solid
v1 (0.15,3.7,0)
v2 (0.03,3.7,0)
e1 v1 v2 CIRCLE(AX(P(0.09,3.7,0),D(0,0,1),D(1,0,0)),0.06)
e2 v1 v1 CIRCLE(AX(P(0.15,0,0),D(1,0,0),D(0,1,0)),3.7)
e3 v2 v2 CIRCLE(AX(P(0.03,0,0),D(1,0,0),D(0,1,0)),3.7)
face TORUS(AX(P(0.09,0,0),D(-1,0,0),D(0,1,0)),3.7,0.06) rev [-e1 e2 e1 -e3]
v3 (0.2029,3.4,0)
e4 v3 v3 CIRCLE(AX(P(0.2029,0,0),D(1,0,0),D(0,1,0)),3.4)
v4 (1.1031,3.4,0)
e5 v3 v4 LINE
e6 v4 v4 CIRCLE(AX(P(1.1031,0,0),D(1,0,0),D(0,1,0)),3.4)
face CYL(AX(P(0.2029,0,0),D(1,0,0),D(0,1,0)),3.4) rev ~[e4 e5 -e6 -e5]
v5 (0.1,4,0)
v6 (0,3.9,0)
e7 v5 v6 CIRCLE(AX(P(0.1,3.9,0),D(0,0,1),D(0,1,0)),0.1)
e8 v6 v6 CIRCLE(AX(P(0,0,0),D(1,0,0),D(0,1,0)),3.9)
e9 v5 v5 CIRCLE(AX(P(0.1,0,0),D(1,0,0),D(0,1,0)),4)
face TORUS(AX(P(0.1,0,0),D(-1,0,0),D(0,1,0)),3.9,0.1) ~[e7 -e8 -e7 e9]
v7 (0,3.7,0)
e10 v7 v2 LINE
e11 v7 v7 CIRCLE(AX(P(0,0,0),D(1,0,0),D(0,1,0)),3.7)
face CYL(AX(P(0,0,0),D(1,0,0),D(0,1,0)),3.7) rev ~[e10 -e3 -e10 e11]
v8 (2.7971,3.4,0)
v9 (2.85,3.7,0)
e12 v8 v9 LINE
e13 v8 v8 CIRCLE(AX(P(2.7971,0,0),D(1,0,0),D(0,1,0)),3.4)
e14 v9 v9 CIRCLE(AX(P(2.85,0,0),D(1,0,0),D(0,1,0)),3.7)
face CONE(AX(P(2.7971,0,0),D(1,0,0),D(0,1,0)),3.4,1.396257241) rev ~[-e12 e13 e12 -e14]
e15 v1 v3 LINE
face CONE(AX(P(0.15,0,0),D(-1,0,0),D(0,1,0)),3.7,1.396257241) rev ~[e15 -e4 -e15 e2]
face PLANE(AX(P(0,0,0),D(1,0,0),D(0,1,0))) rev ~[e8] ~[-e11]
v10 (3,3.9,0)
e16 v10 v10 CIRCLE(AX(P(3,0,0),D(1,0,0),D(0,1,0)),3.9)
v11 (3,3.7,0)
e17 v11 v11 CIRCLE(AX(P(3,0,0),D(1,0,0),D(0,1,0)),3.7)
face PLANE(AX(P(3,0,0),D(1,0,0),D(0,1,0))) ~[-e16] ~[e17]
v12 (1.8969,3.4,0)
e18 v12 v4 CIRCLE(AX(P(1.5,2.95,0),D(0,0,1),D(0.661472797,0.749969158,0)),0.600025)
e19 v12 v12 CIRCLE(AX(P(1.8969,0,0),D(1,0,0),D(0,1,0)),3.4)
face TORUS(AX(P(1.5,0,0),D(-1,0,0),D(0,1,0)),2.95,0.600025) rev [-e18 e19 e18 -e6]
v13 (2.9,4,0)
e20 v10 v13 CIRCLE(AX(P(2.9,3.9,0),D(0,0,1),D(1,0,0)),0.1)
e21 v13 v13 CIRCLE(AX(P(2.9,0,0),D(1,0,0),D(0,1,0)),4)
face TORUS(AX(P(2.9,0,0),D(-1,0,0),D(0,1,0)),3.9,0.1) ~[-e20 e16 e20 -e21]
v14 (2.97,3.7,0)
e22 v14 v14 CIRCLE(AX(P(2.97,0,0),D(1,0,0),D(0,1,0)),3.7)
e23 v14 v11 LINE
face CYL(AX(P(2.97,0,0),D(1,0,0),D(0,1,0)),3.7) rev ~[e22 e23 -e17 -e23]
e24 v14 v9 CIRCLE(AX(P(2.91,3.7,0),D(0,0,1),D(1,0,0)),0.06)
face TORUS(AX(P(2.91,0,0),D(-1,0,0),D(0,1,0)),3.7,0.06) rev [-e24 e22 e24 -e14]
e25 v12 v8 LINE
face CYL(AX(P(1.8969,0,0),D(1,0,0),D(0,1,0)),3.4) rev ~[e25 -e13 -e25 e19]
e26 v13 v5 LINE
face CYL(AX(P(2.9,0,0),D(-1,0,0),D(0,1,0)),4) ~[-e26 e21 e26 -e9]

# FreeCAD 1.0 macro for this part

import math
import FreeCAD as App
import Part
import Sketcher
from FreeCAD import Vector
Q = App.Units.Quantity

doc = App.newDocument("Part")
body = doc.addObject("PartDesign::Body", "Body")

sketch1 = doc.addObject("Sketcher::SketchObject", "Sketch")
body.addObject(sketch1)
sketch1.AttachmentSupport = (doc.XY_Plane, [""])
sketch1.MapMode = "FlatFace"
sketch1.addGeometry(Part.ArcOfCircle(Part.Circle(Vector(0.1, 3.9, 0), Vector(0, 0, 1), 0.1), math.radians(90), math.radians(180)), False)
sketch1.addGeometry(Part.LineSegment(Vector(0, 3.9, 0), Vector(0, 3.7, 0)), False)
sketch1.addGeometry(Part.LineSegment(Vector(0, 3.7, 0), Vector(0.03, 3.7, 0)), False)
sketch1.addGeometry(Part.ArcOfCircle(Part.Circle(Vector(0.09, 3.7, 0), Vector(0, 0, 1), 0.06), math.radians(0), math.radians(180)), False)
sketch1.addGeometry(Part.LineSegment(Vector(0.15, 3.7, 0), Vector(0.2029, 3.4, 0)), False)
sketch1.addGeometry(Part.LineSegment(Vector(0.2029, 3.4, 0), Vector(1.1031, 3.4, 0)), False)
sketch1.addGeometry(Part.ArcOfCircle(Part.Circle(Vector(1.5, 2.95, 0), Vector(0, 0, 1), 0.600025), math.radians(48.587706), math.radians(131.412294)), False)
sketch1.addGeometry(Part.LineSegment(Vector(1.8969, 3.4, 0), Vector(2.7971, 3.4, 0)), False)
sketch1.addGeometry(Part.LineSegment(Vector(2.7971, 3.4, 0), Vector(2.85, 3.7, 0)), False)
sketch1.addGeometry(Part.ArcOfCircle(Part.Circle(Vector(2.91, 3.7, 0), Vector(0, 0, 1), 0.06), math.radians(0), math.radians(180)), False)
sketch1.addGeometry(Part.LineSegment(Vector(2.97, 3.7, 0), Vector(3, 3.7, 0)), False)
sketch1.addGeometry(Part.LineSegment(Vector(3, 3.7, 0), Vector(3, 3.9, 0)), False)
sketch1.addGeometry(Part.ArcOfCircle(Part.Circle(Vector(2.9, 3.9, 0), Vector(0, 0, 1), 0.1), math.radians(0), math.radians(90)), False)
sketch1.addGeometry(Part.LineSegment(Vector(2.9, 4, 0), Vector(0.1, 4, 0)), False)
sketch1.addConstraint(Sketcher.Constraint("Tangent", 0, 2, 1, 1))
sketch1.addConstraint(Sketcher.Constraint("Coincident", 1, 2, 2, 1))
sketch1.addConstraint(Sketcher.Constraint("Coincident", 2, 2, 3, 2))
sketch1.addConstraint(Sketcher.Constraint("Coincident", 3, 1, 4, 1))
sketch1.addConstraint(Sketcher.Constraint("Coincident", 4, 2, 5, 1))
sketch1.addConstraint(Sketcher.Constraint("Coincident", 5, 2, 6, 2))
sketch1.addConstraint(Sketcher.Constraint("Coincident", 6, 1, 7, 1))
sketch1.addConstraint(Sketcher.Constraint("Coincident", 7, 2, 8, 1))
sketch1.addConstraint(Sketcher.Constraint("Coincident", 8, 2, 9, 2))
sketch1.addConstraint(Sketcher.Constraint("Coincident", 9, 1, 10, 1))
sketch1.addConstraint(Sketcher.Constraint("Coincident", 10, 2, 11, 1))
sketch1.addConstraint(Sketcher.Constraint("Tangent", 11, 2, 12, 1))
sketch1.addConstraint(Sketcher.Constraint("Tangent", 12, 2, 13, 1))
sketch1.addConstraint(Sketcher.Constraint("Tangent", 13, 2, 0, 1))
sketch1.addConstraint(Sketcher.Constraint("Vertical", 1))
sketch1.addConstraint(Sketcher.Constraint("Horizontal", 2))
sketch1.addConstraint(Sketcher.Constraint("Horizontal", 5))
sketch1.addConstraint(Sketcher.Constraint("Horizontal", 7))
sketch1.addConstraint(Sketcher.Constraint("Horizontal", 10))
sketch1.addConstraint(Sketcher.Constraint("Vertical", 11))
sketch1.addConstraint(Sketcher.Constraint("Horizontal", 13))
sketch1.addConstraint(Sketcher.Constraint("Equal", 3, 9))
sketch1.addConstraint(Sketcher.Constraint("Equal", 0, 12))
sketch1.addConstraint(Sketcher.Constraint("PointOnObject", 0, 2, -2))
sketch1.addConstraint(Sketcher.Constraint("Horizontal", 3, 3, 9, 3))
sketch1.addConstraint(Sketcher.Constraint("Horizontal", 9, 3, 1, 2))
sketch1.addConstraint(Sketcher.Constraint("Horizontal", 2, 2, 3, 1))
sketch1.addConstraint(Sketcher.Constraint("Horizontal", 5, 2, 6, 1))
sketch1.addConstraint(Sketcher.Constraint("Horizontal", 3, 1, 8, 2))
sketch1.addConstraint(Sketcher.Constraint("Horizontal", 8, 2, 9, 1))
sketch1.addConstraint(Sketcher.Constraint("Equal", 5, 7))
sketch1.addConstraint(Sketcher.Constraint("Equal", 2, 10))
sketch1.addConstraint(Sketcher.Constraint("Equal", 4, 8))
sketch1.addConstraint(Sketcher.Constraint("Radius", 0, 0.1))
sketch1.addConstraint(Sketcher.Constraint("Radius", 6, 0.6))
sketch1.addConstraint(Sketcher.Constraint("Angle", 4, Q("-79.9996 deg")))
sketch1.addConstraint(Sketcher.Constraint("Radius", 3, 0.06))
sketch1.addConstraint(Sketcher.Constraint("DistanceX", 13, 2, 13, 1, 2.8))
sketch1.addConstraint(Sketcher.Constraint("DistanceY", 1, 2, 1, 1, 0.2))
sketch1.addConstraint(Sketcher.Constraint("DistanceY", -1, 1, 12, 2, 4.0))
sketch1.addConstraint(Sketcher.Constraint("DistanceX", 2, 1, 2, 2, 0.03))
sketch1.addConstraint(Sketcher.Constraint("DistanceY", -1, 1, 4, 2, 3.4))
sketch1.addConstraint(Sketcher.Constraint("DistanceY", -1, 1, 6, 3, 2.95))
revolution = doc.addObject("PartDesign::Revolution", "Revolution")
body.addObject(revolution)
revolution.Profile = sketch1
revolution.ReferenceAxis = (sketch1, ["H_Axis"])
revolution.Angle = 360

doc.recompute()
